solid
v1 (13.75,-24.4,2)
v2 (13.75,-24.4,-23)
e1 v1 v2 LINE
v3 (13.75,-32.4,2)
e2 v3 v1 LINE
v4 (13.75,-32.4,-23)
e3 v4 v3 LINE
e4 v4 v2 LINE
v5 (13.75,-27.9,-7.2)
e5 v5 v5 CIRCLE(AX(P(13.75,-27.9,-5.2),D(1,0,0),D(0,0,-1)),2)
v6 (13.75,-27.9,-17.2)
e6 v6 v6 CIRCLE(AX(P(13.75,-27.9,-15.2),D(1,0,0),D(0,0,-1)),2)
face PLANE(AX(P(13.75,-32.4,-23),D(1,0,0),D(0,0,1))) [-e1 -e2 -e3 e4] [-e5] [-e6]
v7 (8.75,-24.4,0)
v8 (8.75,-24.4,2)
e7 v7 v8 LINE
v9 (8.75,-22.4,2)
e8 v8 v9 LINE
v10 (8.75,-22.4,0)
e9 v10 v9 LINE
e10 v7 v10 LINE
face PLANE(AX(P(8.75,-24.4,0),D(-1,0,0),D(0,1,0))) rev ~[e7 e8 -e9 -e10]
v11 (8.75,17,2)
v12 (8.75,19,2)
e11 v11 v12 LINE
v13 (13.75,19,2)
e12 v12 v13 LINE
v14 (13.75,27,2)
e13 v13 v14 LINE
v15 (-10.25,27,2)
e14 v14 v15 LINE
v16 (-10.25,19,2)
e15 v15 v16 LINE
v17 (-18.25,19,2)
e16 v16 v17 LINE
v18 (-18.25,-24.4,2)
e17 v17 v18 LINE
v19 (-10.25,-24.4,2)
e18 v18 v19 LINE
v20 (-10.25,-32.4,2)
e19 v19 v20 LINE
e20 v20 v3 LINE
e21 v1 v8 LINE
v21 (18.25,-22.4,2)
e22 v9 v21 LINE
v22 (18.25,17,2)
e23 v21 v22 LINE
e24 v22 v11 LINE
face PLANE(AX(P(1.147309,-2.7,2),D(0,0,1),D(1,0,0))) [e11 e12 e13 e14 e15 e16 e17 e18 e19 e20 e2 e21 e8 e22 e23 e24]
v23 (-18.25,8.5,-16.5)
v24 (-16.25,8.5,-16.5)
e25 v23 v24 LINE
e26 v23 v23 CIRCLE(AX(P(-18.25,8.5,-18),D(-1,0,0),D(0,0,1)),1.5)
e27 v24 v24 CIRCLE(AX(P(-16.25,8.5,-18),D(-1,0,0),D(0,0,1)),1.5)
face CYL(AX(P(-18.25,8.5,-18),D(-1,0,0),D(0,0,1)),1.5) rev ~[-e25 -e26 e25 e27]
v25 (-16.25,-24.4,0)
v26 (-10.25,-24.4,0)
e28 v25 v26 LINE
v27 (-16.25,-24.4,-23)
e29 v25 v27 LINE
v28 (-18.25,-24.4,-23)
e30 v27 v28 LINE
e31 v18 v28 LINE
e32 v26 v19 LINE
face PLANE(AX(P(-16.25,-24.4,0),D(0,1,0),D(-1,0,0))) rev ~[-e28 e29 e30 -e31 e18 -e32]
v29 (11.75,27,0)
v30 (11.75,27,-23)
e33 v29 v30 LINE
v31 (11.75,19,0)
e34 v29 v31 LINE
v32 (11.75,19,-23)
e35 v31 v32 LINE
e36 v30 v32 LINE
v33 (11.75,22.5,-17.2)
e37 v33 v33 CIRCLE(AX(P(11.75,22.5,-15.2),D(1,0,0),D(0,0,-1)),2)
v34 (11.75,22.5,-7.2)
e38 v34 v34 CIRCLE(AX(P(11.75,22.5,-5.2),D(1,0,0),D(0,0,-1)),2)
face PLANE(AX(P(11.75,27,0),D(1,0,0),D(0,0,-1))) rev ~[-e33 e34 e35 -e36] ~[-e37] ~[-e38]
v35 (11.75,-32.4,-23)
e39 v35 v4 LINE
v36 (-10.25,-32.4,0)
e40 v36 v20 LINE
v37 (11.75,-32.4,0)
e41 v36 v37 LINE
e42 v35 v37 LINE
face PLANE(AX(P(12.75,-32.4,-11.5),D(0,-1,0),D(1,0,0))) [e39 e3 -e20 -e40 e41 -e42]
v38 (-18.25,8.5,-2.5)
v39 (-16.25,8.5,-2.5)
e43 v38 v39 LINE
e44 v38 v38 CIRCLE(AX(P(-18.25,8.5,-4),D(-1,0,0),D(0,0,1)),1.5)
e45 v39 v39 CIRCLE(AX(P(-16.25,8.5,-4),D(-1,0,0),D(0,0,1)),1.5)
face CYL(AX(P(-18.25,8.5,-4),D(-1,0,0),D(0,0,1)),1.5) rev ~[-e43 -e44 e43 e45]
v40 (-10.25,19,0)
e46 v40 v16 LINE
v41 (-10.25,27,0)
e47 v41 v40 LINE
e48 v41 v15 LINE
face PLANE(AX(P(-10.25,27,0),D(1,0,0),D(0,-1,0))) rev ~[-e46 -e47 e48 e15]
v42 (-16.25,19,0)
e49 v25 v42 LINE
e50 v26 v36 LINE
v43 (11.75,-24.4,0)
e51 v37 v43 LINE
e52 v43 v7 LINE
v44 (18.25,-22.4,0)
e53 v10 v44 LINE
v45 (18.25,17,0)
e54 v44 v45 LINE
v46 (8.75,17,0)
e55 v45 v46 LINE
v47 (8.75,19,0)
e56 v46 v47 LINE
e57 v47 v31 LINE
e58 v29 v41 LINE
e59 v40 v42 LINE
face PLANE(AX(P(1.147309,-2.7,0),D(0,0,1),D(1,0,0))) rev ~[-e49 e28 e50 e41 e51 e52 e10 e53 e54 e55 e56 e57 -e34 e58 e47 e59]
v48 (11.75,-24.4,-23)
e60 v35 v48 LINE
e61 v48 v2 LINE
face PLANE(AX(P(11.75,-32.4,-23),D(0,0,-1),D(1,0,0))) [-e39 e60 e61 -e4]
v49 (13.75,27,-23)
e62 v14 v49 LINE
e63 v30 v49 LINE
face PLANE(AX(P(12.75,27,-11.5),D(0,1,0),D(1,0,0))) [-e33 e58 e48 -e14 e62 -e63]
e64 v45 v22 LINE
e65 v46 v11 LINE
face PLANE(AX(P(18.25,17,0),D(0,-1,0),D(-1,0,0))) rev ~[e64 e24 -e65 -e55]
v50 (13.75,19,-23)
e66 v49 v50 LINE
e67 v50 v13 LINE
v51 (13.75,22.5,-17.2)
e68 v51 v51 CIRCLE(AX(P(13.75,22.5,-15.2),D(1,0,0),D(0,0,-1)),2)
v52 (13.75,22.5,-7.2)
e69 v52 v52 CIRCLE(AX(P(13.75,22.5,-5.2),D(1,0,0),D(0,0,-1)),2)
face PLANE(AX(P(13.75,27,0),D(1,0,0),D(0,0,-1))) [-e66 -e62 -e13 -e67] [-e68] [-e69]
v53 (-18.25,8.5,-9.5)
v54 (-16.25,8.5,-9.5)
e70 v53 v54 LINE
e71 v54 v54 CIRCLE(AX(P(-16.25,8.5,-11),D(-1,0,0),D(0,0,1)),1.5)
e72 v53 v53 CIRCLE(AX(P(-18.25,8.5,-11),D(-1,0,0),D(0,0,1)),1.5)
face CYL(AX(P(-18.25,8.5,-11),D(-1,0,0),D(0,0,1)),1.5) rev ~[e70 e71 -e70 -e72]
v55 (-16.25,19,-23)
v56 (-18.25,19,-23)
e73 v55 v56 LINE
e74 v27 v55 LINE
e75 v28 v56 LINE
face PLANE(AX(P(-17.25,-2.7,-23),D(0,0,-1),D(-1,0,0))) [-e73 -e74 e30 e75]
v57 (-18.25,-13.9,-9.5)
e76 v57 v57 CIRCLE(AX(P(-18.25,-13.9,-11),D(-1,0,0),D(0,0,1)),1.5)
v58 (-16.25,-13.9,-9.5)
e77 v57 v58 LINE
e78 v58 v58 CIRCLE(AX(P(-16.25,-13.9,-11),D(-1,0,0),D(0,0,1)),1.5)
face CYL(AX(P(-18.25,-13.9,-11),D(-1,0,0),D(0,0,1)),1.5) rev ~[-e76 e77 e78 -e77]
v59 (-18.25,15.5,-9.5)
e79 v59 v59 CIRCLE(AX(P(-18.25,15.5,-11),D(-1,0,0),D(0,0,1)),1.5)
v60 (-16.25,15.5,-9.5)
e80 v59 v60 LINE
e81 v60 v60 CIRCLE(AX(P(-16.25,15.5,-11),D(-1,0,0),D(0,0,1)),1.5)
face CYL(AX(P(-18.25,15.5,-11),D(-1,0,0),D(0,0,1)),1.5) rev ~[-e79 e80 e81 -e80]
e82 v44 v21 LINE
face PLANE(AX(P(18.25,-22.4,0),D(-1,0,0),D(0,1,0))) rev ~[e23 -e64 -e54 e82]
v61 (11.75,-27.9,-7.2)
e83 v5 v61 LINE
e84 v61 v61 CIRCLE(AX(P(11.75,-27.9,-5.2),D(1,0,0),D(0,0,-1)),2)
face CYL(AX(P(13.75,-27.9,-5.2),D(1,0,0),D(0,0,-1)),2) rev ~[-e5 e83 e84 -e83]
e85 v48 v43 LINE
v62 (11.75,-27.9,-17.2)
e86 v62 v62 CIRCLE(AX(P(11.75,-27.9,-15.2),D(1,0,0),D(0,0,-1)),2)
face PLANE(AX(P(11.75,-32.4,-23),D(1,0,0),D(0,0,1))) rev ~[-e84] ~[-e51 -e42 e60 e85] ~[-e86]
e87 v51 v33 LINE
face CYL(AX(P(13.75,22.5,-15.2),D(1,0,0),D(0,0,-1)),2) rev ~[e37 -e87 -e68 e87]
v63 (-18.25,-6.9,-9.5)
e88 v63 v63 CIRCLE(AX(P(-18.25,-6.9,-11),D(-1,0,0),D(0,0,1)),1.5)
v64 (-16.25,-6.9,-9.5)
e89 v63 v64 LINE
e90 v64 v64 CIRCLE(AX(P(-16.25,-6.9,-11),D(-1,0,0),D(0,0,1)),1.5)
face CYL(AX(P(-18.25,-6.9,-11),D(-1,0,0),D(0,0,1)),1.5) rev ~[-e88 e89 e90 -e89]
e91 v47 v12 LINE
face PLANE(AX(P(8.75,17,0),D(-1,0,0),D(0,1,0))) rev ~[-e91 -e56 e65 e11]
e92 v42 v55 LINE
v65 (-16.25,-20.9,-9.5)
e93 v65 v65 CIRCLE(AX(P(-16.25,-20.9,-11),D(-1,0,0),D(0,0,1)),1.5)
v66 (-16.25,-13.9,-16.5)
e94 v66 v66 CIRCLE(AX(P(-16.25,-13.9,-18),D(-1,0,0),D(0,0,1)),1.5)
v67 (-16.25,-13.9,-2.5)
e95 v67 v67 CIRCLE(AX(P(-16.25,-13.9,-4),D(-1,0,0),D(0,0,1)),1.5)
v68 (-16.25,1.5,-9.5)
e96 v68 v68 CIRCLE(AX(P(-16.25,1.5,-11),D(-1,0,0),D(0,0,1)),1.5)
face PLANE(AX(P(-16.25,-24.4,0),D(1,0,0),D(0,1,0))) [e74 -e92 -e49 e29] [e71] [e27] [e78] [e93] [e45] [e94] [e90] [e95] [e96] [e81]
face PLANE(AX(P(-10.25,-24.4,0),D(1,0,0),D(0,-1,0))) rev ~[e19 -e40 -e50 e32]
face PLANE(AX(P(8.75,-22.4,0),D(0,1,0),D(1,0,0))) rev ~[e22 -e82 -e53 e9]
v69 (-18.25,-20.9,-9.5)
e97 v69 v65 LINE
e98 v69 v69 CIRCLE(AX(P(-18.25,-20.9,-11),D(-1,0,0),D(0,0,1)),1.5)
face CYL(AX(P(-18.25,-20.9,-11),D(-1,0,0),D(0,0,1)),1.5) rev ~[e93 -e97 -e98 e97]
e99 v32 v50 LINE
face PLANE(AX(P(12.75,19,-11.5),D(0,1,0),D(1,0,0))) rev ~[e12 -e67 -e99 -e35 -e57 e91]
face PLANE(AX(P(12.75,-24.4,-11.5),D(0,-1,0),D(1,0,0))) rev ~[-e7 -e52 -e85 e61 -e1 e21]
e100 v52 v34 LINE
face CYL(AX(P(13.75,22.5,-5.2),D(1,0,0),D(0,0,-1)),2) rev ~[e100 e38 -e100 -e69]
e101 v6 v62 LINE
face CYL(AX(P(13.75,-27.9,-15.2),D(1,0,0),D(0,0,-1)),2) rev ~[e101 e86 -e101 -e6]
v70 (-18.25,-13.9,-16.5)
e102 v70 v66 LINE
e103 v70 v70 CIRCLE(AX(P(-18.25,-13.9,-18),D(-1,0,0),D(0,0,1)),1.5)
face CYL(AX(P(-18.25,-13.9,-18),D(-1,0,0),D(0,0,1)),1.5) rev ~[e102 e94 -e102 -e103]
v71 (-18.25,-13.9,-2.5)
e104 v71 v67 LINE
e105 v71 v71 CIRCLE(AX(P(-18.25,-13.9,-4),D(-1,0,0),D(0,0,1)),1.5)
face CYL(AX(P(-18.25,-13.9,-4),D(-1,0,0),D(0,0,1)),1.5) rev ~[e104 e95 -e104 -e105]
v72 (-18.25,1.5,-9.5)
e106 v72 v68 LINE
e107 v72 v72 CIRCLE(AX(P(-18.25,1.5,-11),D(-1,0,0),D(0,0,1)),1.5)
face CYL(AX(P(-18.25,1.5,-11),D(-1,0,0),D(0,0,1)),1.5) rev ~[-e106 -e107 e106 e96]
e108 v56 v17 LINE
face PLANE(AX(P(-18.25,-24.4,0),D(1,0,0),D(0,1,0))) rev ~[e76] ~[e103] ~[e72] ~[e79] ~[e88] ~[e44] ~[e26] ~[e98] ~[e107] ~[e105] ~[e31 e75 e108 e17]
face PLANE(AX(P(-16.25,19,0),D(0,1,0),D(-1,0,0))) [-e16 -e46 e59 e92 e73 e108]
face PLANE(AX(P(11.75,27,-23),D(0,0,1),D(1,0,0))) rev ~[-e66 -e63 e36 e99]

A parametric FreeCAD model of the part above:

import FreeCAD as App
import Part
import Sketcher

doc = App.newDocument("Part")
body = doc.addObject("PartDesign::Body", "Body")

# Sketch on XY plane
sketch1 = body.newObject("Sketcher::SketchObject", "Sketch")
sketch1.AttachmentSupport = (doc.getObject("XY_Plane"), [""])
sketch1.MapMode = "FlatFace"
sketch1.addGeometry([
    Part.LineSegment(App.Vector(8.8, 17, 0), App.Vector(8.8, 19, 0)),  # 0
    Part.LineSegment(App.Vector(8.8, 19, 0), App.Vector(13.8, 19, 0)),  # 1
    Part.LineSegment(App.Vector(13.8, 19, 0), App.Vector(13.8, 27, 0)),  # 2
    Part.LineSegment(App.Vector(13.8, 27, 0), App.Vector(-10.2, 27, 0)),  # 3
    Part.LineSegment(App.Vector(-10.2, 27, 0), App.Vector(-10.2, 19, 0)),  # 4
    Part.LineSegment(App.Vector(-10.2, 19, 0), App.Vector(-18.2, 19, 0)),  # 5
    Part.LineSegment(App.Vector(-18.2, 19, 0), App.Vector(-18.2, -24.4, 0)),  # 6
    Part.LineSegment(App.Vector(-18.2, -24.4, 0), App.Vector(-10.2, -24.4, 0)),  # 7
    Part.LineSegment(App.Vector(-10.2, -24.4, 0), App.Vector(-10.2, -32.4, 0)),  # 8
    Part.LineSegment(App.Vector(-10.2, -32.4, 0), App.Vector(13.8, -32.4, 0)),  # 9
    Part.LineSegment(App.Vector(13.8, -32.4, 0), App.Vector(13.8, -24.4, 0)),  # 10
    Part.LineSegment(App.Vector(13.8, -24.4, 0), App.Vector(8.8, -24.4, 0)),  # 11
    Part.LineSegment(App.Vector(8.8, -24.4, 0), App.Vector(8.8, -22.4, 0)),  # 12
    Part.LineSegment(App.Vector(8.8, -22.4, 0), App.Vector(18.2, -22.4, 0)),  # 13
    Part.LineSegment(App.Vector(18.2, -22.4, 0), App.Vector(18.2, 17, 0)),  # 14
    Part.LineSegment(App.Vector(18.2, 17, 0), App.Vector(8.8, 17, 0)),  # 15
], False)
sketch1.addConstraint([
    Sketcher.Constraint("Coincident", 0, 2, 1, 1),
    Sketcher.Constraint("Coincident", 1, 2, 2, 1),
    Sketcher.Constraint("Coincident", 2, 2, 3, 1),
    Sketcher.Constraint("Coincident", 3, 2, 4, 1),
    Sketcher.Constraint("Coincident", 4, 2, 5, 1),
    Sketcher.Constraint("Coincident", 5, 2, 6, 1),
    Sketcher.Constraint("Coincident", 6, 2, 7, 1),
    Sketcher.Constraint("Coincident", 7, 2, 8, 1),
    Sketcher.Constraint("Coincident", 8, 2, 9, 1),
    Sketcher.Constraint("Coincident", 9, 2, 10, 1),
    Sketcher.Constraint("Coincident", 10, 2, 11, 1),
    Sketcher.Constraint("Coincident", 11, 2, 12, 1),
    Sketcher.Constraint("Coincident", 12, 2, 13, 1),
    Sketcher.Constraint("Coincident", 13, 2, 14, 1),
    Sketcher.Constraint("Coincident", 14, 2, 15, 1),
    Sketcher.Constraint("Coincident", 15, 2, 0, 1),
    Sketcher.Constraint("Vertical", 0),
    Sketcher.Constraint("Horizontal", 1),
    Sketcher.Constraint("Vertical", 2),
    Sketcher.Constraint("Horizontal", 3),
    Sketcher.Constraint("Vertical", 4),
    Sketcher.Constraint("Horizontal", 5),
    Sketcher.Constraint("Vertical", 6),
    Sketcher.Constraint("Horizontal", 7),
    Sketcher.Constraint("Vertical", 8),
    Sketcher.Constraint("Horizontal", 9),
    Sketcher.Constraint("Vertical", 10),
    Sketcher.Constraint("Horizontal", 11),
    Sketcher.Constraint("Vertical", 12),
    Sketcher.Constraint("Horizontal", 13),
    Sketcher.Constraint("Vertical", 14),
    Sketcher.Constraint("Horizontal", 15),
    Sketcher.Constraint("Horizontal", 1, 2, 4, 2),
    Sketcher.Constraint("Horizontal", 7, 2, 10, 2),
    Sketcher.Constraint("Vertical", 4, 2, 7, 2),
    Sketcher.Constraint("Vertical", 2, 2, 9, 2),
    Sketcher.Constraint("Vertical", 0, 2, 11, 2),
    Sketcher.Constraint("Equal", 7, 2),
    Sketcher.Constraint("Equal", 4, 8),
    Sketcher.Constraint("Equal", 0, 12),
    Sketcher.Constraint("DistanceX", 1, 1, 1, 2, 5.0),
    Sketcher.Constraint("DistanceX", 3, 2, 3, 1, 24.0),
    Sketcher.Constraint("DistanceX", 5, 2, 5, 1, 8.0),
    Sketcher.Constraint("DistanceY", 0, 1, 0, 2, 2.0),
    Sketcher.Constraint("DistanceX", 13, 1, 13, 2, 9.5),
    Sketcher.Constraint("DistanceY", 6, 2, 6, 1, 43.4),
    Sketcher.Constraint("DistanceY", -1, 1, 0, 2, 19.0),
    Sketcher.Constraint("DistanceX", -1, 1, 0, 2, 8.75),
])
pad1 = body.newObject("PartDesign::Pad", "Pad")
pad1.Profile = sketch1
pad1.Length = 2

# Sketch on XY plane
sketch2 = body.newObject("Sketcher::SketchObject", "Sketch001")
sketch2.AttachmentSupport = (doc.getObject("XY_Plane"), [""])
sketch2.MapMode = "FlatFace"
sketch2.addGeometry([
    Part.LineSegment(App.Vector(-16.2, 19, 0), App.Vector(-16.2, -24.4, 0)),
    Part.LineSegment(App.Vector(-16.2, -24.4, 0), App.Vector(-18.2, -24.4, 0)),
    Part.LineSegment(App.Vector(-18.2, -24.4, 0), App.Vector(-18.2, 19, 0)),
    Part.LineSegment(App.Vector(-18.2, 19, 0), App.Vector(-16.2, 19, 0)),
], False)
sketch2.addConstraint([
    Sketcher.Constraint("Coincident", 0, 2, 1, 1),
    Sketcher.Constraint("Coincident", 1, 2, 2, 1),
    Sketcher.Constraint("Coincident", 2, 2, 3, 1),
    Sketcher.Constraint("Coincident", 3, 2, 0, 1),
    Sketcher.Constraint("Vertical", 0),
    Sketcher.Constraint("Horizontal", 1),
    Sketcher.Constraint("Vertical", 2),
    Sketcher.Constraint("Horizontal", 3),
    Sketcher.Constraint("DistanceX", 1, 2, 1, 1, 2.0),
    Sketcher.Constraint("DistanceY", 0, 2, 0, 1, 43.4),
    Sketcher.Constraint("DistanceY", -1, 1, 2, 2, 19.0),
    Sketcher.Constraint("DistanceX", 0, 2, -1, 1, 16.25),
])
pad2 = body.newObject("PartDesign::Pad", "Pad001")
pad2.Profile = sketch2
pad2.Length = 23
pad2.Reversed = True

# Sketch on XZ plane
sketch3 = body.newObject("Sketcher::SketchObject", "Sketch002")
sketch3.AttachmentSupport = (doc.getObject("XZ_Plane"), [""])
sketch3.MapMode = "FlatFace"
sketch3.AttachmentOffset = App.Placement(App.Vector(0, 0, -27), App.Rotation())
sketch3.addGeometry([
    Part.LineSegment(App.Vector(11.8, -23, 0), App.Vector(11.8, 0, 0)),
    Part.LineSegment(App.Vector(11.8, 0, 0), App.Vector(13.8, 0, 0)),
    Part.LineSegment(App.Vector(13.8, 0, 0), App.Vector(13.8, -23, 0)),
    Part.LineSegment(App.Vector(13.8, -23, 0), App.Vector(11.8, -23, 0)),
], False)
sketch3.addConstraint([
    Sketcher.Constraint("Coincident", 0, 2, 1, 1),
    Sketcher.Constraint("Coincident", 1, 2, 2, 1),
    Sketcher.Constraint("Coincident", 2, 2, 3, 1),
    Sketcher.Constraint("Coincident", 3, 2, 0, 1),
    Sketcher.Constraint("Vertical", 0),
    Sketcher.Constraint("Horizontal", 1),
    Sketcher.Constraint("Vertical", 2),
    Sketcher.Constraint("Horizontal", 3),
    Sketcher.Constraint("PointOnObject", 0, 2, -1),
    Sketcher.Constraint("DistanceX", 1, 1, 1, 2, 2.0),
    Sketcher.Constraint("DistanceY", 0, 1, 0, 2, 23.0),
    Sketcher.Constraint("DistanceX", -1, 1, 0, 2, 11.75),
])
pad3 = body.newObject("PartDesign::Pad", "Pad002")
pad3.Profile = sketch3
pad3.Length = 8

# Sketch on XZ plane
sketch4 = body.newObject("Sketcher::SketchObject", "Sketch003")
sketch4.AttachmentSupport = (doc.getObject("XZ_Plane"), [""])
sketch4.MapMode = "FlatFace"
sketch4.AttachmentOffset = App.Placement(App.Vector(0, 0, 32.4), App.Rotation())
sketch4.addGeometry([
    Part.LineSegment(App.Vector(11.8, 0, 0), App.Vector(11.8, -23, 0)),
    Part.LineSegment(App.Vector(11.8, -23, 0), App.Vector(13.8, -23, 0)),
    Part.LineSegment(App.Vector(13.8, -23, 0), App.Vector(13.8, 0, 0)),
    Part.LineSegment(App.Vector(13.8, 0, 0), App.Vector(11.8, 0, 0)),
], False)
sketch4.addConstraint([
    Sketcher.Constraint("Coincident", 0, 2, 1, 1),
    Sketcher.Constraint("Coincident", 1, 2, 2, 1),
    Sketcher.Constraint("Coincident", 2, 2, 3, 1),
    Sketcher.Constraint("Coincident", 3, 2, 0, 1),
    Sketcher.Constraint("Vertical", 0),
    Sketcher.Constraint("Horizontal", 1),
    Sketcher.Constraint("Vertical", 2),
    Sketcher.Constraint("Horizontal", 3),
    Sketcher.Constraint("PointOnObject", 2, 2, -1),
    Sketcher.Constraint("DistanceX", 1, 1, 1, 2, 2.0),
    Sketcher.Constraint("DistanceY", 0, 2, 0, 1, 23.0),
    Sketcher.Constraint("DistanceX", -1, 1, 0, 2, 11.75),
])
pad4 = body.newObject("PartDesign::Pad", "Pad003")
pad4.Profile = sketch4
pad4.Length = 8
pad4.Reversed = True

# Sketch on YZ plane
sketch5 = body.newObject("Sketcher::SketchObject", "Sketch004")
sketch5.AttachmentSupport = (doc.getObject("YZ_Plane"), [""])
sketch5.MapMode = "FlatFace"
sketch5.AttachmentOffset = App.Placement(App.Vector(0, 0, 13.75), App.Rotation())
sketch5.addGeometry([
    Part.Circle(App.Vector(22.5, -5.2, 0), App.Vector(0, 0, 1), 2),
    Part.Circle(App.Vector(22.5, -15.2, 0), App.Vector(0, 0, 1), 2),
    Part.Circle(App.Vector(-27.9, -15.2, 0), App.Vector(0, 0, 1), 2),
    Part.Circle(App.Vector(-27.9, -5.2, 0), App.Vector(0, 0, 1), 2),
], False)
sketch5.addConstraint([
    Sketcher.Constraint("Equal", 0, 1),
    Sketcher.Constraint("Equal", 1, 2),
    Sketcher.Constraint("Equal", 2, 3),
    Sketcher.Constraint("Horizontal", 1, 3, 2, 3),
    Sketcher.Constraint("Horizontal", 0, 3, 3, 3),
    Sketcher.Constraint("Vertical", 0, 3, 1, 3),
    Sketcher.Constraint("Vertical", 2, 3, 3, 3),
    Sketcher.Constraint("Diameter", 0, 4.0),
    Sketcher.Constraint("DistanceY", 1, 3, 0, 3, 10.0),
    Sketcher.Constraint("DistanceX", -1, 1, 0, 3, 22.5),
    Sketcher.Constraint("DistanceY", 0, 3, -1, 1, 5.2),
    Sketcher.Constraint("DistanceX", 2, 3, -1, 1, 27.9),
])
pocket1 = body.newObject("PartDesign::Pocket", "Pocket")
pocket1.Profile = sketch5
pocket1.Length = 2

# Sketch on YZ plane
sketch6 = body.newObject("Sketcher::SketchObject", "Sketch005")
sketch6.AttachmentSupport = (doc.getObject("YZ_Plane"), [""])
sketch6.MapMode = "FlatFace"
sketch6.AttachmentOffset = App.Placement(App.Vector(0, 0, -18.25), App.Rotation())
sketch6.addGeometry([
    Part.Circle(App.Vector(15.5, -11, 0), App.Vector(0, 0, 1), 1.5),  # 0
    Part.Circle(App.Vector(8.5, -11, 0), App.Vector(0, 0, 1), 1.5),  # 1
    Part.Circle(App.Vector(8.5, -4, 0), App.Vector(0, 0, 1), 1.5),  # 2
    Part.Circle(App.Vector(1.5, -11, 0), App.Vector(0, 0, 1), 1.5),  # 3
    Part.Circle(App.Vector(8.5, -18, 0), App.Vector(0, 0, 1), 1.5),  # 4
    Part.Circle(App.Vector(-6.9, -11, 0), App.Vector(0, 0, 1), 1.5),  # 5
    Part.Circle(App.Vector(-13.9, -11, 0), App.Vector(0, 0, 1), 1.5),  # 6
    Part.Circle(App.Vector(-13.9, -4, 0), App.Vector(0, 0, 1), 1.5),  # 7
    Part.Circle(App.Vector(-13.9, -18, 0), App.Vector(0, 0, 1), 1.5),  # 8
    Part.Circle(App.Vector(-20.9, -11, 0), App.Vector(0, 0, 1), 1.5),  # 9
], False)
sketch6.addConstraint([
    Sketcher.Constraint("Equal", 0, 1),
    Sketcher.Constraint("Equal", 1, 2),
    Sketcher.Constraint("Equal", 2, 3),
    Sketcher.Constraint("Equal", 3, 4),
    Sketcher.Constraint("Equal", 4, 5),
    Sketcher.Constraint("Equal", 5, 6),
    Sketcher.Constraint("Equal", 6, 7),
    Sketcher.Constraint("Equal", 7, 8),
    Sketcher.Constraint("Equal", 8, 9),
    Sketcher.Constraint("Horizontal", 0, 3, 1, 3),
    Sketcher.Constraint("Horizontal", 1, 3, 3, 3),
    Sketcher.Constraint("Horizontal", 3, 3, 5, 3),
    Sketcher.Constraint("Horizontal", 5, 3, 6, 3),
    Sketcher.Constraint("Horizontal", 2, 3, 7, 3),
    Sketcher.Constraint("Horizontal", 4, 3, 8, 3),
    Sketcher.Constraint("Horizontal", 6, 3, 9, 3),
    Sketcher.Constraint("Vertical", 1, 3, 2, 3),
    Sketcher.Constraint("Vertical", 2, 3, 4, 3),
    Sketcher.Constraint("Vertical", 6, 3, 7, 3),
    Sketcher.Constraint("Vertical", 7, 3, 8, 3),
    Sketcher.Constraint("Diameter", 0, 3.0),
    Sketcher.Constraint("DistanceY", 0, 3, -1, 1, 11.0),
    Sketcher.Constraint("DistanceY", 2, 3, -1, 1, 4.0),
    Sketcher.Constraint("DistanceY", 4, 3, -1, 1, 18.0),
    Sketcher.Constraint("DistanceX", 1, 3, 0, 3, 7.0),
    Sketcher.Constraint("DistanceX", 3, 3, 1, 3, 7.0),
    Sketcher.Constraint("DistanceX", 6, 3, 5, 3, 7.0),
    Sketcher.Constraint("DistanceX", 9, 3, 6, 3, 7.0),
    Sketcher.Constraint("DistanceX", -1, 1, 0, 3, 15.5),
    Sketcher.Constraint("DistanceX", 5, 3, -1, 1, 6.9),
])
pocket2 = body.newObject("PartDesign::Pocket", "Pocket001")
pocket2.Profile = sketch6
pocket2.Length = 2
pocket2.Reversed = True

doc.recompute()
